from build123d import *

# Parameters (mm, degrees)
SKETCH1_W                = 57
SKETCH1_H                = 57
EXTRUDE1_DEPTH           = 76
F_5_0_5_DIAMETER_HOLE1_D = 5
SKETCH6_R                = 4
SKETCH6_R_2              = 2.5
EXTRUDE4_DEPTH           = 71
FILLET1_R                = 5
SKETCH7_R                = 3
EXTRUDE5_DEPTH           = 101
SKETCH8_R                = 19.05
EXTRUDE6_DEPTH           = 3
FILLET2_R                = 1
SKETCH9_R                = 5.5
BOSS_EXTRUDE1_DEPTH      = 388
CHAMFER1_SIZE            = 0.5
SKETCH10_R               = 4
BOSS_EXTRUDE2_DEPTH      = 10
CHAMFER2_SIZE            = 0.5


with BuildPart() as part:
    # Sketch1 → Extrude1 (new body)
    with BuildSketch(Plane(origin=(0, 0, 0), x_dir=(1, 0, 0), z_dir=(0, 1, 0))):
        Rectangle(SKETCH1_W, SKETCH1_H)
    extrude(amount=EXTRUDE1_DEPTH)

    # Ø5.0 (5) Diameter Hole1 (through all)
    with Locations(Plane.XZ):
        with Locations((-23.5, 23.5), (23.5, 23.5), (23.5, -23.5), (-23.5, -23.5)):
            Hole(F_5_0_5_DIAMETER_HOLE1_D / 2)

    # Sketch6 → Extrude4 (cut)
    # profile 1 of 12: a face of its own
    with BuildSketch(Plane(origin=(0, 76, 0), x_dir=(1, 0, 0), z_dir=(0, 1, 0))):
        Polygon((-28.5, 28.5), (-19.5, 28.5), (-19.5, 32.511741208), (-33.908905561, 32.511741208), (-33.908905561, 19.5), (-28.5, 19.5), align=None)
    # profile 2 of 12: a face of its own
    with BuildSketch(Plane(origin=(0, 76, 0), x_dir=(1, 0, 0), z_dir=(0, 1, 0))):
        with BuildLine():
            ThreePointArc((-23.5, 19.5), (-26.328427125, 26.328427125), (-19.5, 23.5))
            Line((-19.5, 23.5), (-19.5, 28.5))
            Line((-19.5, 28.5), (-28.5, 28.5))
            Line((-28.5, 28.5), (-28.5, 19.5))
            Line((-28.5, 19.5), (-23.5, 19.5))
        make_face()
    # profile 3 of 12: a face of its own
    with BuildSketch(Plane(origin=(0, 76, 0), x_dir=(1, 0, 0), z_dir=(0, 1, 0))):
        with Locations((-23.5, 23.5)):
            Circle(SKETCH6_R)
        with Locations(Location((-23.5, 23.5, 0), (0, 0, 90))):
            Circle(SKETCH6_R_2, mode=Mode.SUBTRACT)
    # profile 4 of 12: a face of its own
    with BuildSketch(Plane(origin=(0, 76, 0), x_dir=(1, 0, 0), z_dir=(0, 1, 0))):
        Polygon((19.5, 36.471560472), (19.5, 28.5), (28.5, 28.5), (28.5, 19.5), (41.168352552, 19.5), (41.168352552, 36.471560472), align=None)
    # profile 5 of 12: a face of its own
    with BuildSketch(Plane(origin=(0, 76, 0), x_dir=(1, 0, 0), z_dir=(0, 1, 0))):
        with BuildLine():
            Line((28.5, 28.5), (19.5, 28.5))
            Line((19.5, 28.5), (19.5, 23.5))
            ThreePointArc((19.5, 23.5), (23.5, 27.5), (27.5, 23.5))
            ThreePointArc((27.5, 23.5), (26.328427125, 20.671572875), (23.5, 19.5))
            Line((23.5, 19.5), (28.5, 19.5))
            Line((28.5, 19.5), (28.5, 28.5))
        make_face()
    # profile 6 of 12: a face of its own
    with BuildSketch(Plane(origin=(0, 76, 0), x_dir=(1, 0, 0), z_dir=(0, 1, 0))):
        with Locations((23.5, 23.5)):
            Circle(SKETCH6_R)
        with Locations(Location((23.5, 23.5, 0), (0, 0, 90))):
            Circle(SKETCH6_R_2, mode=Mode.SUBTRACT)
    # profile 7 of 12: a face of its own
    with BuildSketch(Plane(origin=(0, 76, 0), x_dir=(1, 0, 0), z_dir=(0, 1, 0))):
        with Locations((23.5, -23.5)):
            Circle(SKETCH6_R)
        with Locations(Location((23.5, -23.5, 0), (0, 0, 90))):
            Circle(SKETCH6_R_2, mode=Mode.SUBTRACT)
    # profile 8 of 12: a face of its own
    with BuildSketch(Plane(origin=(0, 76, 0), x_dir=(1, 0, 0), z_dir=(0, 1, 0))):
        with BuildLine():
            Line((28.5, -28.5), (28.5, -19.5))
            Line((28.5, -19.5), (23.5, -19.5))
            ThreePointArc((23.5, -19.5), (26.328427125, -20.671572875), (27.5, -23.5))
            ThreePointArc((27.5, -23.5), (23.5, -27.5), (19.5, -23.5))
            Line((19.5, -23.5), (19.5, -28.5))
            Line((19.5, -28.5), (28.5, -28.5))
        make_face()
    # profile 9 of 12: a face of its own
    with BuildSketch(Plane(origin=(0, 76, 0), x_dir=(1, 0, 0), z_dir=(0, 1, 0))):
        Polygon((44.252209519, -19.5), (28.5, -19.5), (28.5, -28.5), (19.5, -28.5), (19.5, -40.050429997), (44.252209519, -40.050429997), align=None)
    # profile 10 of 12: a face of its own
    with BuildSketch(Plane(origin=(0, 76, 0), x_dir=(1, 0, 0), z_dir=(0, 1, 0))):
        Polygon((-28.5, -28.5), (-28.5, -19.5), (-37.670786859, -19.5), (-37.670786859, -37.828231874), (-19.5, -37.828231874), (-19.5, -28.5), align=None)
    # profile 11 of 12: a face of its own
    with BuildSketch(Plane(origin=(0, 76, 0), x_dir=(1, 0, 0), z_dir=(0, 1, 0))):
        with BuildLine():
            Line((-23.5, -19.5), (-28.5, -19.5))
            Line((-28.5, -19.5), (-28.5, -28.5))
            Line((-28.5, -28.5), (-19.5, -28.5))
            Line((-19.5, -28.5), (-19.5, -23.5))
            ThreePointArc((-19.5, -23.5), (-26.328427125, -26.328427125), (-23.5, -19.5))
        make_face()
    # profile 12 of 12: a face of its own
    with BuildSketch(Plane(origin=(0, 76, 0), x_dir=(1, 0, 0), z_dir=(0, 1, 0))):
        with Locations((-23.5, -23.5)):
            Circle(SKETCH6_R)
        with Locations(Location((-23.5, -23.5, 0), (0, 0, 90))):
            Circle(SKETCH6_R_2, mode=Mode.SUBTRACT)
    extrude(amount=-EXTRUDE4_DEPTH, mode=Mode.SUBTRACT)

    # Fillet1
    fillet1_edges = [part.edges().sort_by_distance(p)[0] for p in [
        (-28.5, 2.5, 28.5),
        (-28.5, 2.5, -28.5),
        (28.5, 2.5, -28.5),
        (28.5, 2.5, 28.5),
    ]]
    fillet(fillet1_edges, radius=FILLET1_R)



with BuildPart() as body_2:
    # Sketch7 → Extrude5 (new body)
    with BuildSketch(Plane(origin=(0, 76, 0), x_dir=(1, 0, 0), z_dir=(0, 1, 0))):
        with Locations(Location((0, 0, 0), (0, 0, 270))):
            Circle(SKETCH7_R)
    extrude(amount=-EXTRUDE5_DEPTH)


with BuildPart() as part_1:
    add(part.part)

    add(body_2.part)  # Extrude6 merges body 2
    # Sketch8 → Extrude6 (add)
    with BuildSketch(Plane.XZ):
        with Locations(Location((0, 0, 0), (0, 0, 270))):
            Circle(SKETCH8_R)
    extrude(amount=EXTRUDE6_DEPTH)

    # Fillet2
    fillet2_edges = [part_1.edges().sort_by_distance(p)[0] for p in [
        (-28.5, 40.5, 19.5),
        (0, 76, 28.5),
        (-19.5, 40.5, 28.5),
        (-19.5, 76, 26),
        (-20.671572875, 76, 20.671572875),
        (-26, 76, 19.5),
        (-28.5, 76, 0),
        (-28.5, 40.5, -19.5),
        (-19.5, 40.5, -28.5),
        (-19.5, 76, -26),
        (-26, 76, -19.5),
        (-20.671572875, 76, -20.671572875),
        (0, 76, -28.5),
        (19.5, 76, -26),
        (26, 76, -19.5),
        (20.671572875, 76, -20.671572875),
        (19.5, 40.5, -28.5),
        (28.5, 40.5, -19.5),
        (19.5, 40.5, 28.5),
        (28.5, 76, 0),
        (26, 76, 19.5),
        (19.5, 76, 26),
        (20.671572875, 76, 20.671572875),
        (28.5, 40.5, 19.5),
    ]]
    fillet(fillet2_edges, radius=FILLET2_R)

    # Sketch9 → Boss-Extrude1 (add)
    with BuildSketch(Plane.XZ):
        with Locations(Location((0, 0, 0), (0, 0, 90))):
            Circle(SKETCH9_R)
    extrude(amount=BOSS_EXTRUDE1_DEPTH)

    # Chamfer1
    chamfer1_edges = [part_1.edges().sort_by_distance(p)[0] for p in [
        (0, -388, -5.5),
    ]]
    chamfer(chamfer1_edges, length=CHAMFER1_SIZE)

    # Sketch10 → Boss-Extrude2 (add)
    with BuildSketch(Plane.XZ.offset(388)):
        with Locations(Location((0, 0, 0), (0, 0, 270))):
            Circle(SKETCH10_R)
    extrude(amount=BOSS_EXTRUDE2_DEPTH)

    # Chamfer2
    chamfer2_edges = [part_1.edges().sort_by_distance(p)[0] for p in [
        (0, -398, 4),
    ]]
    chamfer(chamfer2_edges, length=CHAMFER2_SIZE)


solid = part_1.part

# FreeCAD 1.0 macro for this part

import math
import FreeCAD as App
import Part
import Sketcher
from FreeCAD import Vector


def edges_at(feature, points):
    """Names of the edges that pass closest to the given points."""
    edges = feature.Shape.Edges
    near = lambda p: min(range(len(edges)), key=lambda i: edges[i].distToShape(Part.Vertex(*p))[0])
    return sorted({f"Edge{near(p) + 1}" for p in points})


def add_polygon(sketch, points):
    """Adds a closed chain of lines whose ends are joined by coincident constraints."""
    first, n = sketch.GeometryCount, len(points)
    for a, b in zip(points, points[1:] + points[:1]):
        sketch.addGeometry(Part.LineSegment(App.Vector(*a, 0), App.Vector(*b, 0)), False)
    for i in range(n):
        sketch.addConstraint(Sketcher.Constraint("Coincident", first + i, 2, first + (i + 1) % n, 1))

doc = App.newDocument("Part")
body = doc.addObject("PartDesign::Body", "Body")

# Sketch on XZ plane
sketch1 = body.newObject("Sketcher::SketchObject", "Sketch")
sketch1.AttachmentSupport = (doc.getObject("XZ_Plane"), [""])
sketch1.MapMode = "FlatFace"
add_polygon(sketch1, [(-28, -28), (-28, 28), (28, 28), (28, -28)])  # lines 0-3
sketch1.addConstraint([
    Sketcher.Constraint("Vertical", 0),
    Sketcher.Constraint("Horizontal", 1),
    Sketcher.Constraint("Vertical", 2),
    Sketcher.Constraint("Horizontal", 3),
    Sketcher.Constraint("Symmetric", 0, 2, 2, 2, -1, 1),
    Sketcher.Constraint("Equal", 3, 0),
    Sketcher.Constraint("DistanceX", 1, 1, 1, 2, 57.0),
])
pad1 = body.newObject("PartDesign::Pad", "Pad")
pad1.Profile = sketch1
pad1.Length = 76
pad1.Reversed = True

# Sketch on XZ plane
sketch2 = body.newObject("Sketcher::SketchObject", "Sketch001")
sketch2.AttachmentSupport = (doc.getObject("XZ_Plane"), [""])
sketch2.MapMode = "FlatFace"
sketch2.addGeometry([
    Part.Circle(Vector(-23.5, 23.5, 0), Vector(0, 0, 1), 2.5),
    Part.Circle(Vector(23.5, 23.5, 0), Vector(0, 0, 1), 2.5),
    Part.Circle(Vector(23.5, -23.5, 0), Vector(0, 0, 1), 2.5),
    Part.Circle(Vector(-23.5, -23.5, 0), Vector(0, 0, 1), 2.5),
], False)
sketch2.addConstraint([
    Sketcher.Constraint("Equal", 0, 1),
    Sketcher.Constraint("Equal", 1, 2),
    Sketcher.Constraint("Equal", 2, 3),
    Sketcher.Constraint("Symmetric", 0, 3, 2, 3, -1, 1),
    Sketcher.Constraint("Symmetric", 1, 3, 3, 3, -1, 1),
    Sketcher.Constraint("Symmetric", 0, 3, 1, 3, -2),
    Sketcher.Constraint("Diameter", 0, 5.0),
    Sketcher.Constraint("DistanceX", 0, 3, 1, 3, 47.0),
    Sketcher.Constraint("DistanceY", 2, 3, 1, 3, 47.0),
])
doc.recompute()
hole = body.newObject("PartDesign::Hole", "Hole")
hole.Profile = sketch2
hole.ThreadType = "None"
hole.Diameter = 5
hole.DepthType = "ThroughAll"

# Sketch on XZ plane
sketch3 = body.newObject("Sketcher::SketchObject", "Sketch002")
sketch3.AttachmentSupport = (doc.getObject("XZ_Plane"), [""])
sketch3.MapMode = "FlatFace"
sketch3.AttachmentOffset = App.Placement(Vector(0, 0, -76), App.Rotation())
sketch3.addGeometry([
    Part.LineSegment(Vector(-19.5, -32.5, 0), Vector(-33.9, -32.5, 0)),  # 0
    Part.LineSegment(Vector(-33.9, -32.5, 0), Vector(-33.9, -19.5, 0)),  # 1
    Part.LineSegment(Vector(-33.9, -19.5, 0), Vector(-23.5, -19.5, 0)),  # 2
    Part.ArcOfCircle(Part.Circle(Vector(-23.5, -23.5, 0), Vector(0, 0, 1), 4), math.radians(0), math.radians(90)),  # 3
    Part.LineSegment(Vector(-19.5, -23.5, 0), Vector(-19.5, -32.5, 0)),  # 4
    Part.Circle(Vector(-23.5, -23.5, 0), Vector(0, 0, 1), 2.5),  # 5
    Part.LineSegment(Vector(19.5, -36.5, 0), Vector(19.5, -23.5, 0)),  # 6
    Part.ArcOfCircle(Part.Circle(Vector(23.5, -23.5, 0), Vector(0, 0, 1), 4), math.radians(90), math.radians(180)),  # 7
    Part.LineSegment(Vector(23.5, -19.5, 0), Vector(41.2, -19.5, 0)),  # 8
    Part.LineSegment(Vector(41.2, -19.5, 0), Vector(41.2, -36.5, 0)),  # 9
    Part.LineSegment(Vector(41.2, -36.5, 0), Vector(19.5, -36.5, 0)),  # 10
    Part.Circle(Vector(23.5, -23.5, 0), Vector(0, 0, 1), 2.5),  # 11
    Part.ArcOfCircle(Part.Circle(Vector(23.5, 23.5, 0), Vector(0, 0, 1), 4), math.radians(180), math.radians(270)),  # 12
    Part.LineSegment(Vector(19.5, 23.5, 0), Vector(19.5, 40.1, 0)),  # 13
    Part.LineSegment(Vector(19.5, 40.1, 0), Vector(44.3, 40.1, 0)),  # 14
    Part.LineSegment(Vector(44.3, 40.1, 0), Vector(44.3, 19.5, 0)),  # 15
    Part.LineSegment(Vector(44.3, 19.5, 0), Vector(23.5, 19.5, 0)),  # 16
    Part.Circle(Vector(23.5, 23.5, 0), Vector(0, 0, 1), 2.5),  # 17
    Part.LineSegment(Vector(-37.7, 19.5, 0), Vector(-37.7, 37.8, 0)),  # 18
    Part.LineSegment(Vector(-37.7, 37.8, 0), Vector(-19.5, 37.8, 0)),  # 19
    Part.LineSegment(Vector(-19.5, 37.8, 0), Vector(-19.5, 23.5, 0)),  # 20
    Part.ArcOfCircle(Part.Circle(Vector(-23.5, 23.5, 0), Vector(0, 0, 1), 4), math.radians(-90), math.radians(0)),  # 21
    Part.LineSegment(Vector(-23.5, 19.5, 0), Vector(-37.7, 19.5, 0)),  # 22
    Part.Circle(Vector(-23.5, 23.5, 0), Vector(0, 0, 1), 2.5),  # 23
], False)
sketch3.addConstraint([
    Sketcher.Constraint("Coincident", 0, 2, 1, 1),
    Sketcher.Constraint("Coincident", 1, 2, 2, 1),
    Sketcher.Constraint("Tangent", 2, 2, 3, 2),
    Sketcher.Constraint("Tangent", 3, 1, 4, 1),
    Sketcher.Constraint("Coincident", 4, 2, 0, 1),
    Sketcher.Constraint("Tangent", 6, 2, 7, 2),
    Sketcher.Constraint("Tangent", 7, 1, 8, 1),
    Sketcher.Constraint("Coincident", 8, 2, 9, 1),
    Sketcher.Constraint("Coincident", 9, 2, 10, 1),
    Sketcher.Constraint("Coincident", 10, 2, 6, 1),
    Sketcher.Constraint("Tangent", 12, 1, 13, 1),
    Sketcher.Constraint("Coincident", 13, 2, 14, 1),
    Sketcher.Constraint("Coincident", 14, 2, 15, 1),
    Sketcher.Constraint("Coincident", 15, 2, 16, 1),
    Sketcher.Constraint("Tangent", 16, 2, 12, 2),
    Sketcher.Constraint("Coincident", 18, 2, 19, 1),
    Sketcher.Constraint("Coincident", 19, 2, 20, 1),
    Sketcher.Constraint("Tangent", 20, 2, 21, 2),
    Sketcher.Constraint("Tangent", 21, 1, 22, 1),
    Sketcher.Constraint("Coincident", 22, 2, 18, 1),
    Sketcher.Constraint("Horizontal", 0),
    Sketcher.Constraint("Vertical", 1),
    Sketcher.Constraint("Horizontal", 2),
    Sketcher.Constraint("Vertical", 4),
    Sketcher.Constraint("Vertical", 6),
    Sketcher.Constraint("Horizontal", 8),
    Sketcher.Constraint("Vertical", 9),
    Sketcher.Constraint("Horizontal", 10),
    Sketcher.Constraint("Vertical", 13),
    Sketcher.Constraint("Horizontal", 14),
    Sketcher.Constraint("Vertical", 15),
    Sketcher.Constraint("Horizontal", 16),
    Sketcher.Constraint("Vertical", 18),
    Sketcher.Constraint("Horizontal", 19),
    Sketcher.Constraint("Vertical", 20),
    Sketcher.Constraint("Horizontal", 22),
    Sketcher.Constraint("Coincident", 5, 3, 3, 3),
    Sketcher.Constraint("Coincident", 11, 3, 7, 3),
    Sketcher.Constraint("Coincident", 17, 3, 12, 3),
    Sketcher.Constraint("Coincident", 23, 3, 21, 3),
    Sketcher.Constraint("Equal", 3, 7),
    Sketcher.Constraint("Equal", 5, 11),
    Sketcher.Constraint("Equal", 7, 12),
    Sketcher.Constraint("Equal", 11, 17),
    Sketcher.Constraint("Equal", 12, 21),
    Sketcher.Constraint("Equal", 17, 23),
    Sketcher.Constraint("Symmetric", 3, 3, 12, 3, -1, 1),
    Sketcher.Constraint("Symmetric", 7, 3, 21, 3, -1, 1),
    Sketcher.Constraint("Symmetric", 3, 3, 7, 3, -2),
    Sketcher.Constraint("Diameter", 5, 5.0),
    Sketcher.Constraint("Radius", 3, 4.0),
    Sketcher.Constraint("DistanceX", 3, 3, 7, 3, 47.0),
    Sketcher.Constraint("DistanceY", 7, 3, 12, 3, 47.0),
    Sketcher.Constraint("DistanceX", 14, 1, 14, 2, 24.75221),
    Sketcher.Constraint("DistanceY", 1, 1, 1, 2, 13.011741),
    Sketcher.Constraint("DistanceY", 6, 1, 6, 2, 12.97156),
    Sketcher.Constraint("DistanceY", 13, 1, 13, 2, 16.55043),
    Sketcher.Constraint("DistanceY", 18, 1, 18, 2, 18.328232),
    Sketcher.Constraint("DistanceX", 0, 2, 0, 1, 14.408906),
    Sketcher.Constraint("DistanceX", 8, 1, 8, 2, 17.668353),
    Sketcher.Constraint("DistanceX", 19, 1, 19, 2, 18.170787),
])
pocket1 = body.newObject("PartDesign::Pocket", "Pocket")
pocket1.Profile = sketch3
pocket1.Length = 71
pocket1.Reversed = True
doc.recompute()

fillet = body.newObject("PartDesign::Fillet", "Fillet")
fillet.Base = (pocket1, edges_at(pocket1, [
    (-28.5, 2.5, 28.5),
    (-28.5, 2.5, -28.5),
    (28.5, 2.5, -28.5),
    (28.5, 2.5, 28.5),
]))
fillet.Radius = 5
body2 = doc.addObject("PartDesign::Body", "Body001")

# Sketch on XZ plane
sketch4 = body2.newObject("Sketcher::SketchObject", "Sketch003")
sketch4.AttachmentSupport = (doc.getObject("XZ_Plane001"), [""])
sketch4.MapMode = "FlatFace"
sketch4.AttachmentOffset = App.Placement(Vector(0, 0, -76), App.Rotation())
sketch4.addGeometry(Part.Circle(Vector(0, 0, 0), Vector(0, 0, 1), 3), False)
sketch4.addConstraint([
    Sketcher.Constraint("Coincident", 0, 3, -1, 1),
    Sketcher.Constraint("Diameter", 0, 6.0),
])
pad2 = body2.newObject("PartDesign::Pad", "Pad001")
pad2.Profile = sketch4
pad2.Length = 101
doc.recompute()

boolean = body.newObject("PartDesign::Boolean", "Boolean")
boolean.Type = "Fuse"
boolean.addObjects([body2])

# Sketch on XZ plane
sketch5 = body.newObject("Sketcher::SketchObject", "Sketch004")
sketch5.AttachmentSupport = (doc.getObject("XZ_Plane"), [""])
sketch5.MapMode = "FlatFace"
sketch5.addGeometry(Part.Circle(Vector(0, 0, 0), Vector(0, 0, 1), 19), False)
sketch5.addConstraint([
    Sketcher.Constraint("Coincident", 0, 3, -1, 1),
    Sketcher.Constraint("Diameter", 0, 38.1),
])
pad3 = body.newObject("PartDesign::Pad", "Pad002")
pad3.Profile = sketch5
pad3.Length = 3
doc.recompute()

fillet2 = body.newObject("PartDesign::Fillet", "Fillet001")
fillet2.Base = (pad3, edges_at(pad3, [
    (-28.5, 40.5, 19.5),
    (0, 76, 28.5),
    (-19.5, 40.5, 28.5),
    (-19.5, 76, 26),
    (-20.672, 76, 20.672),
    (-26, 76, 19.5),
    (-28.5, 76, 0),
    (-28.5, 40.5, -19.5),
    (-19.5, 40.5, -28.5),
    (-19.5, 76, -26),
    (-26, 76, -19.5),
    (-20.672, 76, -20.672),
    (0, 76, -28.5),
    (19.5, 76, -26),
    (26, 76, -19.5),
    (20.672, 76, -20.672),
    (19.5, 40.5, -28.5),
    (28.5, 40.5, -19.5),
    (19.5, 40.5, 28.5),
    (28.5, 76, 0),
    (26, 76, 19.5),
    (19.5, 76, 26),
    (20.672, 76, 20.672),
    (28.5, 40.5, 19.5),
]))
fillet2.Radius = 1

# Sketch on XZ plane
sketch6 = body.newObject("Sketcher::SketchObject", "Sketch005")
sketch6.AttachmentSupport = (doc.getObject("XZ_Plane"), [""])
sketch6.MapMode = "FlatFace"
sketch6.addGeometry(Part.Circle(Vector(0, 0, 0), Vector(0, 0, 1), 6), False)
sketch6.addConstraint([
    Sketcher.Constraint("Coincident", 0, 3, -1, 1),
    Sketcher.Constraint("Diameter", 0, 11.0),
])
pad4 = body.newObject("PartDesign::Pad", "Pad003")
pad4.Profile = sketch6
pad4.Length = 388
doc.recompute()

chamfer = body.newObject("PartDesign::Chamfer", "Chamfer")
chamfer.Base = (pad4, edges_at(pad4, [(0, -388, -5.5)]))
chamfer.Size = 0.5

# Sketch on XZ plane
sketch7 = body.newObject("Sketcher::SketchObject", "Sketch006")
sketch7.AttachmentSupport = (doc.getObject("XZ_Plane"), [""])
sketch7.MapMode = "FlatFace"
sketch7.AttachmentOffset = App.Placement(Vector(0, 0, 388), App.Rotation())
sketch7.addGeometry(Part.Circle(Vector(0, 0, 0), Vector(0, 0, 1), 4), False)
sketch7.addConstraint([
    Sketcher.Constraint("Coincident", 0, 3, -1, 1),
    Sketcher.Constraint("Diameter", 0, 8.0),
])
pad5 = body.newObject("PartDesign::Pad", "Pad004")
pad5.Profile = sketch7
pad5.Length = 10
doc.recompute()

chamfer2 = body.newObject("PartDesign::Chamfer", "Chamfer001")
chamfer2.Base = (pad5, edges_at(pad5, [(0, -398, 4)]))
chamfer2.Size = 0.5

doc.recompute()
